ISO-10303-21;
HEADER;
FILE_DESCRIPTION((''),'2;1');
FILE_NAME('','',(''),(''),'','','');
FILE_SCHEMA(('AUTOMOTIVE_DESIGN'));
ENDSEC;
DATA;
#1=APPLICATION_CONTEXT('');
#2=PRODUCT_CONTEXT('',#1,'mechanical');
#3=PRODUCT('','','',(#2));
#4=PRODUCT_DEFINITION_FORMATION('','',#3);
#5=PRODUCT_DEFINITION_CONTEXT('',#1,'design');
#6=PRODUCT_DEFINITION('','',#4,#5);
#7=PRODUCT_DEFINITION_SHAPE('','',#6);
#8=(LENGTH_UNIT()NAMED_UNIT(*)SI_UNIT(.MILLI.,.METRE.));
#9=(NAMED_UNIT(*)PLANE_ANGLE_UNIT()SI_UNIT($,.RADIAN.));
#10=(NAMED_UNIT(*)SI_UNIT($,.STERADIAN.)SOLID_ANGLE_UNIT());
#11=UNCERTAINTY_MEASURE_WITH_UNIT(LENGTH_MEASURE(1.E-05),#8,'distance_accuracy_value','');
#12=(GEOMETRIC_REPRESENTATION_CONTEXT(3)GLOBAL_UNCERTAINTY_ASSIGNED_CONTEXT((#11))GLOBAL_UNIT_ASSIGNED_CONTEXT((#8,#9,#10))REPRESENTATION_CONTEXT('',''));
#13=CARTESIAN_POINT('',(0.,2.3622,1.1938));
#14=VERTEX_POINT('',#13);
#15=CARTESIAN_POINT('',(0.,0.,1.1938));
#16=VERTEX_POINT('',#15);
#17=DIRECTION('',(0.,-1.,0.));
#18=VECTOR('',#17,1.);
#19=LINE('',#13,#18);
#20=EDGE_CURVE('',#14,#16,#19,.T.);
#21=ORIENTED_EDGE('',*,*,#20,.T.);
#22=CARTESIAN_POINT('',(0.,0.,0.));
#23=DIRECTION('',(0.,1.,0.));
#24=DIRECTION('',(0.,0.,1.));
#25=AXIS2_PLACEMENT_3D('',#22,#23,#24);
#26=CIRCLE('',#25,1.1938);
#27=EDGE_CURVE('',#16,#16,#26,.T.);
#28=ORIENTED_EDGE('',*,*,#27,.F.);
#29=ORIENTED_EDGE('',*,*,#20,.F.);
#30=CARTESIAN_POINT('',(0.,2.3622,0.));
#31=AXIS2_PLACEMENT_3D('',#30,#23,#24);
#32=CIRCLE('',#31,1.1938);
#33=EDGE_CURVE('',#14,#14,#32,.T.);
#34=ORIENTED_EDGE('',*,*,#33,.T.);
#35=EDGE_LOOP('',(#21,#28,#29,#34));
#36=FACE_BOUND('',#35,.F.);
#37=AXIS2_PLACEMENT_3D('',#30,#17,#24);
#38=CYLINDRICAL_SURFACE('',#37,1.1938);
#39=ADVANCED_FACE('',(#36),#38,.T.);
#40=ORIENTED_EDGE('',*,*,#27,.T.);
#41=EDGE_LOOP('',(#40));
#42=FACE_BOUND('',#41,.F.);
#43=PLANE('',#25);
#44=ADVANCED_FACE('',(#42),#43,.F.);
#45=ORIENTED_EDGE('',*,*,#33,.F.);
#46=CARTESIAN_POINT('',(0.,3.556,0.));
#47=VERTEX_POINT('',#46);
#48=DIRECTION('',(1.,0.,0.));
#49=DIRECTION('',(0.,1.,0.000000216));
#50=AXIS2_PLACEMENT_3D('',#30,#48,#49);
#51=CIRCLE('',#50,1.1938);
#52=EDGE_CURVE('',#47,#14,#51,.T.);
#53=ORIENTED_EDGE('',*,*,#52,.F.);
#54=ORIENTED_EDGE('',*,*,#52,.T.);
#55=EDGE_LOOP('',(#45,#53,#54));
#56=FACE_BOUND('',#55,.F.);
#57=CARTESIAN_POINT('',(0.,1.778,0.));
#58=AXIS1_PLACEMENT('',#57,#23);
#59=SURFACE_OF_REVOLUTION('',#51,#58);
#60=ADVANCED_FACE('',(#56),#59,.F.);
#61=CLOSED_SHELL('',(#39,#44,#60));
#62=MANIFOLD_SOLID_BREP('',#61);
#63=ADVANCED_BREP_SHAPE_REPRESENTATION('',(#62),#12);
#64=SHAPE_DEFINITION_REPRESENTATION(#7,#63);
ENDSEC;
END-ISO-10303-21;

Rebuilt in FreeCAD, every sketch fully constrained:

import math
import FreeCAD as App
import Part
import Sketcher
from FreeCAD import Vector
Q = App.Units.Quantity

doc = App.newDocument("Part")
body = doc.addObject("PartDesign::Body", "Body")

sketch1 = body.newObject("Sketcher::SketchObject", "Sketch")
sketch1.AttachmentSupport = (doc.getObject("YZ_Plane"), [""])
sketch1.MapMode = "FlatFace"
sketch1.addGeometry([
    Part.LineSegment(Vector(0, 1.2, 0), Vector(0, 0, 0)),
    Part.LineSegment(Vector(0, 0, 0), Vector(3.6, 0, 0)),
    Part.ArcOfCircle(Part.Circle(Vector(2.4, 0, 0), Vector(0, 0, 1), 1.2), math.radians(0), math.radians(90)),
    Part.LineSegment(Vector(2.4, 1.2, 0), Vector(0, 1.2, 0)),
], False)
sketch1.addConstraint([
    Sketcher.Constraint("Coincident", 0, 2, 1, 1),
    Sketcher.Constraint("Coincident", 1, 2, 2, 1),
    Sketcher.Constraint("Tangent", 2, 2, 3, 1),
    Sketcher.Constraint("Coincident", 3, 2, 0, 1),
    Sketcher.Constraint("Vertical", 0),
    Sketcher.Constraint("Horizontal", 1),
    Sketcher.Constraint("Horizontal", 3),
    Sketcher.Constraint("Coincident", 0, 2, -1, 1),
    Sketcher.Constraint("PointOnObject", 2, 3, -1),
    Sketcher.Constraint("Radius", 2, Q("0.047 in")),
    Sketcher.Constraint("DistanceX", 1, 1, 1, 2, Q("0.14 in")),
])
revolution = body.newObject("PartDesign::Revolution", "Revolution")
revolution.Profile = sketch1
revolution.ReferenceAxis = (sketch1, ["H_Axis"])
revolution.Angle = 360

doc.recompute()
